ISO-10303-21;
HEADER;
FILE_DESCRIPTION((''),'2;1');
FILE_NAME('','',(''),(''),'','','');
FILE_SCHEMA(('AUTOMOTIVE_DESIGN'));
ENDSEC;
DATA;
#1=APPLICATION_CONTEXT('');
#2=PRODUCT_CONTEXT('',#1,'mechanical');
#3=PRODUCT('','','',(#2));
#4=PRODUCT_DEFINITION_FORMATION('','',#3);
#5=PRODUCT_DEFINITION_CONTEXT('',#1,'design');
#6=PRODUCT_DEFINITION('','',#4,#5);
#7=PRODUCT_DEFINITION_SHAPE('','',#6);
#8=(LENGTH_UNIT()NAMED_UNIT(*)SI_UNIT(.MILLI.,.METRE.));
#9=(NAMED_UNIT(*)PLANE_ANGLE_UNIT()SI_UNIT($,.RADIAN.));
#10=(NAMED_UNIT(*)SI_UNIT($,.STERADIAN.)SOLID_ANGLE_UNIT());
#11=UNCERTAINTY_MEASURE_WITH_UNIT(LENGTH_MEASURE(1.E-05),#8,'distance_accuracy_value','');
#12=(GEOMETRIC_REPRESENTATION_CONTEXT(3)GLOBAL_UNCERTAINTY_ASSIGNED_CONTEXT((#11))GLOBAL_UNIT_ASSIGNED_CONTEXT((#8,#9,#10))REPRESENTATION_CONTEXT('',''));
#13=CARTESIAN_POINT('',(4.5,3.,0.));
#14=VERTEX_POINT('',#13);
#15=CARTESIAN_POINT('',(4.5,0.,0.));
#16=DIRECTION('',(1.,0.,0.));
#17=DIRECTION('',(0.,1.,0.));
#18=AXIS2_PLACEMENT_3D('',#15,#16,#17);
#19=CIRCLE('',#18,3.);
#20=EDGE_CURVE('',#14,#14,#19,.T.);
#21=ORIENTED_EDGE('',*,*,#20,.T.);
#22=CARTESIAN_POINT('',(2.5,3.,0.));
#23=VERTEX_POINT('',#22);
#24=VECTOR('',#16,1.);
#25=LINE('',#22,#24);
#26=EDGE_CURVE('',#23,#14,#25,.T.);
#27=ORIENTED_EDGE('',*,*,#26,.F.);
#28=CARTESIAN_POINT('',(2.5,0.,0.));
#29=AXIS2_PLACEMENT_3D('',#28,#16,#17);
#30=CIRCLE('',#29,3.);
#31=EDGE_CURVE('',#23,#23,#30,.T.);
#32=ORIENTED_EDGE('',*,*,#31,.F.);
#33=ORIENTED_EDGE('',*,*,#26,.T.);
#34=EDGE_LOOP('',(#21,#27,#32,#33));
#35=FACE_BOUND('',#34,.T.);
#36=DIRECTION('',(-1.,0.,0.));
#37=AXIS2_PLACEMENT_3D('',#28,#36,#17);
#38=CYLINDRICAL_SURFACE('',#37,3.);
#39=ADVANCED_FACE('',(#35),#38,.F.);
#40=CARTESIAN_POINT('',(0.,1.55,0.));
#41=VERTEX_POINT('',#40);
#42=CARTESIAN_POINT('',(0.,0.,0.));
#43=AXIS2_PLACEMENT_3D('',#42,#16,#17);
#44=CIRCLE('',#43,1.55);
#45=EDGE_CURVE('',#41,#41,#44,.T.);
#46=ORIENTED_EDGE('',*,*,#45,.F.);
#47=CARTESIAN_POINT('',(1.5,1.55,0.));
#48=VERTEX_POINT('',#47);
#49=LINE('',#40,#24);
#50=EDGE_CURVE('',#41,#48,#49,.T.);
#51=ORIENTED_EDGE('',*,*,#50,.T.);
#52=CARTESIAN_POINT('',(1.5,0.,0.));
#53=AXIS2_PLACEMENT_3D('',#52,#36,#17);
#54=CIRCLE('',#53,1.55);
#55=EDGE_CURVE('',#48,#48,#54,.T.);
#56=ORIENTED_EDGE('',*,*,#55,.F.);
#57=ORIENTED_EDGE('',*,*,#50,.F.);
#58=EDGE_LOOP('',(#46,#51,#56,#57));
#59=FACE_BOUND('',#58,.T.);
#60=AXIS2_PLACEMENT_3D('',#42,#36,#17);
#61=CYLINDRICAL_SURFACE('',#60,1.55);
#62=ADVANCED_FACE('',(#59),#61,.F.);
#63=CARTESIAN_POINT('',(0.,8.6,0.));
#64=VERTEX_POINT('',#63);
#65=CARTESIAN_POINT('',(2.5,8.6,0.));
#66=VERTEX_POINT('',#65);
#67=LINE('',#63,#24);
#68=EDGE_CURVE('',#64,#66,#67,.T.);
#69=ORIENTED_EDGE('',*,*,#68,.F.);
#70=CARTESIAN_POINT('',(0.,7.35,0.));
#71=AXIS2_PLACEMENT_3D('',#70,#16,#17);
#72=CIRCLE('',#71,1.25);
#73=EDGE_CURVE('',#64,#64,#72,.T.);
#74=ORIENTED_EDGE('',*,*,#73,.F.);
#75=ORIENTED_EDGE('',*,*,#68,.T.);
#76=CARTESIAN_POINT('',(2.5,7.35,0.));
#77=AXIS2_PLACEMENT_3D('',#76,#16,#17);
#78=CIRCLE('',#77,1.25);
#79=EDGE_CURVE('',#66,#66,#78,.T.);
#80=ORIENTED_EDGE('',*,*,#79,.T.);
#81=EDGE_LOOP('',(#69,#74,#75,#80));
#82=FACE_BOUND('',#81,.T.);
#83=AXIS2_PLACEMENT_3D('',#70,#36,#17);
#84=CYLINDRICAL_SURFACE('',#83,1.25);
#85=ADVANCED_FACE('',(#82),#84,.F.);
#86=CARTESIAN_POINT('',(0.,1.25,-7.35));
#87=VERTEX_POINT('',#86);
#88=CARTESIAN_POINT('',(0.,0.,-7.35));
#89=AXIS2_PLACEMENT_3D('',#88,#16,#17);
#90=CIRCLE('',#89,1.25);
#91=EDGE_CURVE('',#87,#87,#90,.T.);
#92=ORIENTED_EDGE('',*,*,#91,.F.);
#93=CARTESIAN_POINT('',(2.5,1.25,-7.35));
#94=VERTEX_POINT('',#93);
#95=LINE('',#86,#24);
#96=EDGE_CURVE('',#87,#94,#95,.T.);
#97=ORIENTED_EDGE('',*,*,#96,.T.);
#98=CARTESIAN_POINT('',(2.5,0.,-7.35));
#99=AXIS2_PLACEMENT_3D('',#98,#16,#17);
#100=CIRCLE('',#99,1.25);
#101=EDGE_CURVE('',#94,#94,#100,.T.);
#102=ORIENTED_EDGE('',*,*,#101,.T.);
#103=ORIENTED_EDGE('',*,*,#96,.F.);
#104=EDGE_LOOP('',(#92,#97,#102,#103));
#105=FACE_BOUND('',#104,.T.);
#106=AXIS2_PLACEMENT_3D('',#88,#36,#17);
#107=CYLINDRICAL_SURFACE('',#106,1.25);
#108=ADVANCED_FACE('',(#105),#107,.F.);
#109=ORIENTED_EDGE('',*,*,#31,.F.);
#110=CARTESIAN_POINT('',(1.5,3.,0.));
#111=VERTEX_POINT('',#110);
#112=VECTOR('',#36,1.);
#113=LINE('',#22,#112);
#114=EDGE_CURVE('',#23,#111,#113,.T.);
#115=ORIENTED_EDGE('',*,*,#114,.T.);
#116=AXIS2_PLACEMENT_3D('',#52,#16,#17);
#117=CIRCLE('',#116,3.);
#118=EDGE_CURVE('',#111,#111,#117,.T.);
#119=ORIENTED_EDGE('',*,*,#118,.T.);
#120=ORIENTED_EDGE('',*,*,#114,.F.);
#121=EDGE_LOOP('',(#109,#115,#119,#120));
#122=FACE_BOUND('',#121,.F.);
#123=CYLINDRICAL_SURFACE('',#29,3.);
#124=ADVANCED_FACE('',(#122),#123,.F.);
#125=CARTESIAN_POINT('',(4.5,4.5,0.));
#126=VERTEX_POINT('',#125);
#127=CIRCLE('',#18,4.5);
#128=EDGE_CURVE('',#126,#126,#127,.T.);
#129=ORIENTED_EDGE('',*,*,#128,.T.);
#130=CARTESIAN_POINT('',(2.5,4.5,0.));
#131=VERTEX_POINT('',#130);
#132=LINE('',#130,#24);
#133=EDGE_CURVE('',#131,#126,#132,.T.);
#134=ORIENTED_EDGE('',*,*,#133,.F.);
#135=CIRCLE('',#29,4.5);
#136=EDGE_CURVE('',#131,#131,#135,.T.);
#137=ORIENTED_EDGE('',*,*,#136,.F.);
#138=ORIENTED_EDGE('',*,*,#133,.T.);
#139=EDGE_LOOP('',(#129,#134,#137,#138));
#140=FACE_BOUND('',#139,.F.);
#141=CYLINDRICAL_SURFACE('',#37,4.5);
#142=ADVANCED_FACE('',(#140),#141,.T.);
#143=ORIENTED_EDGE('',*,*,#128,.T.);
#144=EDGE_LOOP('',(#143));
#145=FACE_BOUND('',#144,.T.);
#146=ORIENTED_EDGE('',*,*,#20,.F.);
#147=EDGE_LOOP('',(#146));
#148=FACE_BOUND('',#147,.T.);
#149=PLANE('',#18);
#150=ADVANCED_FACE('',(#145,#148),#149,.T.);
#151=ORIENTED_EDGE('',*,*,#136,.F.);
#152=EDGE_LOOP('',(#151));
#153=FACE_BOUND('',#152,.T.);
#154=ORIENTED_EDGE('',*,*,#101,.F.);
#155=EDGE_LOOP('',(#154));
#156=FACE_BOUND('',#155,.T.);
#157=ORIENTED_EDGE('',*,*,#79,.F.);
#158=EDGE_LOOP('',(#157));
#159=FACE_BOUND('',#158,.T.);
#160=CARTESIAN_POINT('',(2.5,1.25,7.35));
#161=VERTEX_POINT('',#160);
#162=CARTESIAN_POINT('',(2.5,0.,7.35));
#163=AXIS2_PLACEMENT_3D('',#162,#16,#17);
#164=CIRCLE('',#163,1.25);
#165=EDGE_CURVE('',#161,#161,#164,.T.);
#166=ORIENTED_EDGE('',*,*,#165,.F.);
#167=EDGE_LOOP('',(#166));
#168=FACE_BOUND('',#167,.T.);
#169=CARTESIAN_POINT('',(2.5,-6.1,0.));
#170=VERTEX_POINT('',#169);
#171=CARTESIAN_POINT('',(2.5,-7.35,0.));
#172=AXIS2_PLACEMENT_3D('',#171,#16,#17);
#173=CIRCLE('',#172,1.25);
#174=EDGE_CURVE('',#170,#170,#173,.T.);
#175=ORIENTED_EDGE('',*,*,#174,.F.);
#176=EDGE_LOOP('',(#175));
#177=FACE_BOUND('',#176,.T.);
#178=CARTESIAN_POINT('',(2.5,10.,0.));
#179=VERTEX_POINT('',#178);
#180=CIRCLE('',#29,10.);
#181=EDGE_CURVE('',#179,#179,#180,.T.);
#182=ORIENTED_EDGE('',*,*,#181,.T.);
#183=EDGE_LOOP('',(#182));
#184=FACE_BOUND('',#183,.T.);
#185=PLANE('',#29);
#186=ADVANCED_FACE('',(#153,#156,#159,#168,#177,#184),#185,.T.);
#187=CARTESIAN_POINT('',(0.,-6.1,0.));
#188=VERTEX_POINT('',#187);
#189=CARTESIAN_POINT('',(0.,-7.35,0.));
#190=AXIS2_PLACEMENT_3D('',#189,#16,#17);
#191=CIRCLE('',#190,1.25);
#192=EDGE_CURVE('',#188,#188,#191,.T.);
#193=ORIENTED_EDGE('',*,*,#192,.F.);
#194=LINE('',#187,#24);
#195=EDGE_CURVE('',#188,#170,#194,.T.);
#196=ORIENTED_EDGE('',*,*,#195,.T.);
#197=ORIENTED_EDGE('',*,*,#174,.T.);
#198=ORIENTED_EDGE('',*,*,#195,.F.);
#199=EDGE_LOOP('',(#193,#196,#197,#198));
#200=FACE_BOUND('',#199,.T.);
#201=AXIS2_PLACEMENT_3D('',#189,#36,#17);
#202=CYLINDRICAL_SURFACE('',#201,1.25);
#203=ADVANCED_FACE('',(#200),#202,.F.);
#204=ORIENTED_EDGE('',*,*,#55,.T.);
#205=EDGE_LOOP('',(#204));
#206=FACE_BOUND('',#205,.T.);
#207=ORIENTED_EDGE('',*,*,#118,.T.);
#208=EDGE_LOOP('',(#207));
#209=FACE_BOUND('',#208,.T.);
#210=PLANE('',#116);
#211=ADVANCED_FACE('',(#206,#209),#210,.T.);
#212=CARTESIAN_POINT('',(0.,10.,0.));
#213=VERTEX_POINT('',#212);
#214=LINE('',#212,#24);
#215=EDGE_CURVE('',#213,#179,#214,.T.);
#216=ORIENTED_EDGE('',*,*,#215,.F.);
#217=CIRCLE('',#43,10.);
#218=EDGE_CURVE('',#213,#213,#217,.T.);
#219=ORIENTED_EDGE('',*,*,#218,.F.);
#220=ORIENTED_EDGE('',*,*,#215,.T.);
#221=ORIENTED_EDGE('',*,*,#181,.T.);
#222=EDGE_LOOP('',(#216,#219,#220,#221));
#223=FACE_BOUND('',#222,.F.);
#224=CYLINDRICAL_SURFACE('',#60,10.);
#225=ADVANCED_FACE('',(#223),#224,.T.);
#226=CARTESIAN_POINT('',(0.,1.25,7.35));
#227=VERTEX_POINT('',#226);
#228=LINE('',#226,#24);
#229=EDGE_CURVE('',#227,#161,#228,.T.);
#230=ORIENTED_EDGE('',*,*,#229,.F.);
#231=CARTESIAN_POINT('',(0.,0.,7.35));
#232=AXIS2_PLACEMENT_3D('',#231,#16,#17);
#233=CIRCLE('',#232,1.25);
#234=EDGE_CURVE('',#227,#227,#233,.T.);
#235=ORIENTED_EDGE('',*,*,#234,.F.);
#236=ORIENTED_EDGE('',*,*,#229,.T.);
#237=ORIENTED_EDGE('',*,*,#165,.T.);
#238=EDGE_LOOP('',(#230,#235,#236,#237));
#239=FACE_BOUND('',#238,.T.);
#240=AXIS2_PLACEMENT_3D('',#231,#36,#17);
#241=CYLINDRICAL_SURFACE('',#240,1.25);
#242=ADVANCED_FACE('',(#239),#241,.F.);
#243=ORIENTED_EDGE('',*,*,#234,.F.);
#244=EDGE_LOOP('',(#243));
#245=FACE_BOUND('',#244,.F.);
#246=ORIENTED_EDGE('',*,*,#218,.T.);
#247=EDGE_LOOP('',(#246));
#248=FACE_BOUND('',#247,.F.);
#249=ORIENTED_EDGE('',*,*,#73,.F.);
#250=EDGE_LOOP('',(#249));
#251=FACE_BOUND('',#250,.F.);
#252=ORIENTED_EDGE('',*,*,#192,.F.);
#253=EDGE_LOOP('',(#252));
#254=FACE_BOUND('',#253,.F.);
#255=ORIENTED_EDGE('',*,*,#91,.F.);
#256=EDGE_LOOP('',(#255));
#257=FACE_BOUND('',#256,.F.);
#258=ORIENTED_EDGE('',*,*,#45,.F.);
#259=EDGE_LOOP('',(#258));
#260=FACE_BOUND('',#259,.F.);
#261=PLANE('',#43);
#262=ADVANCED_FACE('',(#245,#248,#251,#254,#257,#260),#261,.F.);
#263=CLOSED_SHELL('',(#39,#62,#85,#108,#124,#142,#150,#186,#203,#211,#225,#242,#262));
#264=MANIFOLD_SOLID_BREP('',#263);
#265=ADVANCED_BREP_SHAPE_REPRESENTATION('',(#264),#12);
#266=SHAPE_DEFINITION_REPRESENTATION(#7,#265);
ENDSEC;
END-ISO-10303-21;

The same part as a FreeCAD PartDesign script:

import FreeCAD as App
import Part
import Sketcher

doc = App.newDocument("Part")
body = doc.addObject("PartDesign::Body", "Body")

# Sketch on YZ plane
sketch1 = body.newObject("Sketcher::SketchObject", "Sketch")
sketch1.AttachmentSupport = (doc.getObject("YZ_Plane"), [""])
sketch1.MapMode = "FlatFace"
sketch1.addGeometry(Part.Circle(App.Vector(0, 0, 0), App.Vector(0, 0, 1), 10), False)
sketch1.addGeometry(Part.Circle(App.Vector(0, -7.3, 0), App.Vector(0, 0, 1), 1.2), False)
sketch1.addGeometry(Part.Circle(App.Vector(-7.3, 0, 0), App.Vector(0, 0, 1), 1.2), False)
sketch1.addGeometry(Part.Circle(App.Vector(0, 0, 0), App.Vector(0, 0, 1), 1.6), False)
sketch1.addGeometry(Part.Circle(App.Vector(0, 7.3, 0), App.Vector(0, 0, 1), 1.2), False)
sketch1.addGeometry(Part.Circle(App.Vector(7.3, 0, 0), App.Vector(0, 0, 1), 1.2), False)
sketch1.addConstraint(Sketcher.Constraint("Coincident", 0, 3, -1, 1))
sketch1.addConstraint(Sketcher.Constraint("Coincident", 3, 3, -1, 1))
sketch1.addConstraint(Sketcher.Constraint("Equal", 1, 2))
sketch1.addConstraint(Sketcher.Constraint("Equal", 2, 4))
sketch1.addConstraint(Sketcher.Constraint("Equal", 4, 5))
sketch1.addConstraint(Sketcher.Constraint("Symmetric", 1, 3, 4, 3, -1, 1))
sketch1.addConstraint(Sketcher.Constraint("Symmetric", 2, 3, 5, 3, -1, 1))
sketch1.addConstraint(Sketcher.Constraint("PointOnObject", 1, 3, -2))
sketch1.addConstraint(Sketcher.Constraint("PointOnObject", 2, 3, -1))
sketch1.addConstraint(Sketcher.Constraint("Diameter", 0, 20.0))
sketch1.addConstraint(Sketcher.Constraint("Diameter", 1, 2.5))
sketch1.addConstraint(Sketcher.Constraint("Diameter", 3, 3.1))
sketch1.addConstraint(Sketcher.Constraint("DistanceY", 1, 3, 4, 3, 14.7))
sketch1.addConstraint(Sketcher.Constraint("DistanceX", 2, 3, 5, 3, 14.7))
pad1 = body.newObject("PartDesign::Pad", "Pad")
pad1.Profile = sketch1
pad1.Length = 2.5

# Sketch on YZ plane
sketch2 = body.newObject("Sketcher::SketchObject", "Sketch001")
sketch2.AttachmentSupport = (doc.getObject("YZ_Plane"), [""])
sketch2.MapMode = "FlatFace"
sketch2.AttachmentOffset = App.Placement(App.Vector(0, 0, 2.5), App.Rotation())
sketch2.addGeometry(Part.Circle(App.Vector(0, 0, 0), App.Vector(0, 0, 1), 4.5), False)
sketch2.addGeometry(Part.Circle(App.Vector(0, 0, 0), App.Vector(0, 0, 1), 3), False)
sketch2.addConstraint(Sketcher.Constraint("Coincident", 0, 3, -1, 1))
sketch2.addConstraint(Sketcher.Constraint("Coincident", 1, 3, -1, 1))
sketch2.addConstraint(Sketcher.Constraint("Diameter", 0, 9.0))
sketch2.addConstraint(Sketcher.Constraint("Diameter", 1, 6.0))
pad2 = body.newObject("PartDesign::Pad", "Pad001")
pad2.Profile = sketch2
pad2.Length = 2

# Sketch on YZ plane
sketch3 = body.newObject("Sketcher::SketchObject", "Sketch002")
sketch3.AttachmentSupport = (doc.getObject("YZ_Plane"), [""])
sketch3.MapMode = "FlatFace"
sketch3.AttachmentOffset = App.Placement(App.Vector(0, 0, 2.5), App.Rotation())
sketch3.addGeometry(Part.Circle(App.Vector(0, 0, 0), App.Vector(0, 0, 1), 3), False)
sketch3.addConstraint(Sketcher.Constraint("Coincident", 0, 3, -1, 1))
sketch3.addConstraint(Sketcher.Constraint("Diameter", 0, 6.0))
pocket1 = body.newObject("PartDesign::Pocket", "Pocket")
pocket1.Profile = sketch3
pocket1.Length = 1

doc.recompute()
